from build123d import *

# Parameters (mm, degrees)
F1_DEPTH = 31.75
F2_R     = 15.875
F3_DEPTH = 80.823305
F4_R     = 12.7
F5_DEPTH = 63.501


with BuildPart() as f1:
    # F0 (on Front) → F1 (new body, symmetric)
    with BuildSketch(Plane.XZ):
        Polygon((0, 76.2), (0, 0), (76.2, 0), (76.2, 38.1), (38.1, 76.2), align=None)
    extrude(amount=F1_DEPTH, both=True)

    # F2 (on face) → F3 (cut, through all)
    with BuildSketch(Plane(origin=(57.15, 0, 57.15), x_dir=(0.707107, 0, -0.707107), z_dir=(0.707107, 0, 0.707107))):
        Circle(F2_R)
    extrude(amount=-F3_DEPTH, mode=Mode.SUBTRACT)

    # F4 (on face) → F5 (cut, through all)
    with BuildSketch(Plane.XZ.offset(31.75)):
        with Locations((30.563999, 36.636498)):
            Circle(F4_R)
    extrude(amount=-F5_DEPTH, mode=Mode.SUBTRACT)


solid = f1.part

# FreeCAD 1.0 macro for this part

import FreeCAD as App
import Part
import Sketcher

V = App.Vector
Q = App.Units.Quantity


def add_polygon(sketch, points):
    """Adds a closed chain of lines whose ends are joined by coincident constraints."""
    first, n = sketch.GeometryCount, len(points)
    for a, b in zip(points, points[1:] + points[:1]):
        sketch.addGeometry(Part.LineSegment(App.Vector(*a, 0), App.Vector(*b, 0)), False)
    for i in range(n):
        sketch.addConstraint(Sketcher.Constraint("Coincident", first + i, 2, first + (i + 1) % n, 1))

doc = App.newDocument("Part")
params = doc.addObject("Spreadsheet::Sheet", "Params")
for row, (alias, value) in enumerate([
    ("sketch1_width", "3 in"),
    ("sketch1_width2", "1.5 in"),
    ("pad1_length", "2.5 in"),
    ("sketch2_diameter", "1.25 in"),
    ("sketch3_diameter", "1 in"),
], start=1):
    params.set(f"A{row}", alias)
    params.set(f"B{row}", "=" + value)
    params.setAlias(f"B{row}", alias)

body = doc.addObject("PartDesign::Body", "Body")

sketch1 = body.newObject("Sketcher::SketchObject", "Sketch")
sketch1.AttachmentSupport = (doc.getObject("XZ_Plane"), [""])
sketch1.MapMode = "FlatFace"
add_polygon(sketch1, [(0, 76), (0, 0), (76, 0), (76, 38), (38, 76)])
sketch1.addConstraint([
    Sketcher.Constraint("Vertical", 0),
    Sketcher.Constraint("Horizontal", 1),
    Sketcher.Constraint("Vertical", 2),
    Sketcher.Constraint("Horizontal", 4),
    Sketcher.Constraint("Coincident", 0, 2, -1, 1),
    Sketcher.Constraint("Equal", 1, 0),
    Sketcher.Constraint("Equal", 4, 2),
    Sketcher.Constraint("DistanceX", 1, 1, 1, 2, Q("3 in")),
    Sketcher.Constraint("DistanceX", 4, 2, 4, 1, Q("1.5 in")),
])
sketch1.setExpression("Constraints[12]", "Params.sketch1_width")
sketch1.setExpression("Constraints[13]", "Params.sketch1_width2")
pad1 = body.newObject("PartDesign::Pad", "Pad")
pad1.Profile = sketch1
pad1.setExpression("Length", "Params.pad1_length")
pad1.Midplane = True

sketch2 = body.newObject("Sketcher::SketchObject", "Sketch001")
sketch2.Placement = App.Placement(V(57.15, 0, 57.15), App.Rotation(V(0.707106781, 0, -0.707106781), V(0, 0.999999999, 0), V(0.707106781, 0, 0.707106781), "ZXY"))
sketch2.addGeometry(Part.Circle(V(0, 0, 0), V(0, 0, 1), 16), False)
sketch2.addConstraint([
    Sketcher.Constraint("Coincident", 0, 3, -1, 1),
    Sketcher.Constraint("Diameter", 0, Q("1.25 in")),
])
sketch2.setExpression("Constraints[1]", "Params.sketch2_diameter")
pocket1 = body.newObject("PartDesign::Pocket", "Pocket")
pocket1.Profile = sketch2
pocket1.Type = "ThroughAll"

sketch3 = body.newObject("Sketcher::SketchObject", "Sketch002")
sketch3.AttachmentSupport = (doc.getObject("XZ_Plane"), [""])
sketch3.MapMode = "FlatFace"
sketch3.AttachmentOffset = App.Placement(V(0, 0, 1.25 * 25.4), App.Rotation())
sketch3.addGeometry(Part.Circle(V(31, 37, 0), V(0, 0, 1), 13), False)
sketch3.addConstraint([
    Sketcher.Constraint("Diameter", 0, Q("1 in")),
    Sketcher.Constraint("DistanceX", -1, 1, 0, 3, Q("30.563999 mm")),
    Sketcher.Constraint("DistanceY", -1, 1, 0, 3, Q("36.636498 mm")),
])
sketch3.setExpression("Constraints[0]", "Params.sketch3_diameter")
pocket2 = body.newObject("PartDesign::Pocket", "Pocket001")
pocket2.Profile = sketch3
pocket2.Type = "ThroughAll"

doc.recompute()
